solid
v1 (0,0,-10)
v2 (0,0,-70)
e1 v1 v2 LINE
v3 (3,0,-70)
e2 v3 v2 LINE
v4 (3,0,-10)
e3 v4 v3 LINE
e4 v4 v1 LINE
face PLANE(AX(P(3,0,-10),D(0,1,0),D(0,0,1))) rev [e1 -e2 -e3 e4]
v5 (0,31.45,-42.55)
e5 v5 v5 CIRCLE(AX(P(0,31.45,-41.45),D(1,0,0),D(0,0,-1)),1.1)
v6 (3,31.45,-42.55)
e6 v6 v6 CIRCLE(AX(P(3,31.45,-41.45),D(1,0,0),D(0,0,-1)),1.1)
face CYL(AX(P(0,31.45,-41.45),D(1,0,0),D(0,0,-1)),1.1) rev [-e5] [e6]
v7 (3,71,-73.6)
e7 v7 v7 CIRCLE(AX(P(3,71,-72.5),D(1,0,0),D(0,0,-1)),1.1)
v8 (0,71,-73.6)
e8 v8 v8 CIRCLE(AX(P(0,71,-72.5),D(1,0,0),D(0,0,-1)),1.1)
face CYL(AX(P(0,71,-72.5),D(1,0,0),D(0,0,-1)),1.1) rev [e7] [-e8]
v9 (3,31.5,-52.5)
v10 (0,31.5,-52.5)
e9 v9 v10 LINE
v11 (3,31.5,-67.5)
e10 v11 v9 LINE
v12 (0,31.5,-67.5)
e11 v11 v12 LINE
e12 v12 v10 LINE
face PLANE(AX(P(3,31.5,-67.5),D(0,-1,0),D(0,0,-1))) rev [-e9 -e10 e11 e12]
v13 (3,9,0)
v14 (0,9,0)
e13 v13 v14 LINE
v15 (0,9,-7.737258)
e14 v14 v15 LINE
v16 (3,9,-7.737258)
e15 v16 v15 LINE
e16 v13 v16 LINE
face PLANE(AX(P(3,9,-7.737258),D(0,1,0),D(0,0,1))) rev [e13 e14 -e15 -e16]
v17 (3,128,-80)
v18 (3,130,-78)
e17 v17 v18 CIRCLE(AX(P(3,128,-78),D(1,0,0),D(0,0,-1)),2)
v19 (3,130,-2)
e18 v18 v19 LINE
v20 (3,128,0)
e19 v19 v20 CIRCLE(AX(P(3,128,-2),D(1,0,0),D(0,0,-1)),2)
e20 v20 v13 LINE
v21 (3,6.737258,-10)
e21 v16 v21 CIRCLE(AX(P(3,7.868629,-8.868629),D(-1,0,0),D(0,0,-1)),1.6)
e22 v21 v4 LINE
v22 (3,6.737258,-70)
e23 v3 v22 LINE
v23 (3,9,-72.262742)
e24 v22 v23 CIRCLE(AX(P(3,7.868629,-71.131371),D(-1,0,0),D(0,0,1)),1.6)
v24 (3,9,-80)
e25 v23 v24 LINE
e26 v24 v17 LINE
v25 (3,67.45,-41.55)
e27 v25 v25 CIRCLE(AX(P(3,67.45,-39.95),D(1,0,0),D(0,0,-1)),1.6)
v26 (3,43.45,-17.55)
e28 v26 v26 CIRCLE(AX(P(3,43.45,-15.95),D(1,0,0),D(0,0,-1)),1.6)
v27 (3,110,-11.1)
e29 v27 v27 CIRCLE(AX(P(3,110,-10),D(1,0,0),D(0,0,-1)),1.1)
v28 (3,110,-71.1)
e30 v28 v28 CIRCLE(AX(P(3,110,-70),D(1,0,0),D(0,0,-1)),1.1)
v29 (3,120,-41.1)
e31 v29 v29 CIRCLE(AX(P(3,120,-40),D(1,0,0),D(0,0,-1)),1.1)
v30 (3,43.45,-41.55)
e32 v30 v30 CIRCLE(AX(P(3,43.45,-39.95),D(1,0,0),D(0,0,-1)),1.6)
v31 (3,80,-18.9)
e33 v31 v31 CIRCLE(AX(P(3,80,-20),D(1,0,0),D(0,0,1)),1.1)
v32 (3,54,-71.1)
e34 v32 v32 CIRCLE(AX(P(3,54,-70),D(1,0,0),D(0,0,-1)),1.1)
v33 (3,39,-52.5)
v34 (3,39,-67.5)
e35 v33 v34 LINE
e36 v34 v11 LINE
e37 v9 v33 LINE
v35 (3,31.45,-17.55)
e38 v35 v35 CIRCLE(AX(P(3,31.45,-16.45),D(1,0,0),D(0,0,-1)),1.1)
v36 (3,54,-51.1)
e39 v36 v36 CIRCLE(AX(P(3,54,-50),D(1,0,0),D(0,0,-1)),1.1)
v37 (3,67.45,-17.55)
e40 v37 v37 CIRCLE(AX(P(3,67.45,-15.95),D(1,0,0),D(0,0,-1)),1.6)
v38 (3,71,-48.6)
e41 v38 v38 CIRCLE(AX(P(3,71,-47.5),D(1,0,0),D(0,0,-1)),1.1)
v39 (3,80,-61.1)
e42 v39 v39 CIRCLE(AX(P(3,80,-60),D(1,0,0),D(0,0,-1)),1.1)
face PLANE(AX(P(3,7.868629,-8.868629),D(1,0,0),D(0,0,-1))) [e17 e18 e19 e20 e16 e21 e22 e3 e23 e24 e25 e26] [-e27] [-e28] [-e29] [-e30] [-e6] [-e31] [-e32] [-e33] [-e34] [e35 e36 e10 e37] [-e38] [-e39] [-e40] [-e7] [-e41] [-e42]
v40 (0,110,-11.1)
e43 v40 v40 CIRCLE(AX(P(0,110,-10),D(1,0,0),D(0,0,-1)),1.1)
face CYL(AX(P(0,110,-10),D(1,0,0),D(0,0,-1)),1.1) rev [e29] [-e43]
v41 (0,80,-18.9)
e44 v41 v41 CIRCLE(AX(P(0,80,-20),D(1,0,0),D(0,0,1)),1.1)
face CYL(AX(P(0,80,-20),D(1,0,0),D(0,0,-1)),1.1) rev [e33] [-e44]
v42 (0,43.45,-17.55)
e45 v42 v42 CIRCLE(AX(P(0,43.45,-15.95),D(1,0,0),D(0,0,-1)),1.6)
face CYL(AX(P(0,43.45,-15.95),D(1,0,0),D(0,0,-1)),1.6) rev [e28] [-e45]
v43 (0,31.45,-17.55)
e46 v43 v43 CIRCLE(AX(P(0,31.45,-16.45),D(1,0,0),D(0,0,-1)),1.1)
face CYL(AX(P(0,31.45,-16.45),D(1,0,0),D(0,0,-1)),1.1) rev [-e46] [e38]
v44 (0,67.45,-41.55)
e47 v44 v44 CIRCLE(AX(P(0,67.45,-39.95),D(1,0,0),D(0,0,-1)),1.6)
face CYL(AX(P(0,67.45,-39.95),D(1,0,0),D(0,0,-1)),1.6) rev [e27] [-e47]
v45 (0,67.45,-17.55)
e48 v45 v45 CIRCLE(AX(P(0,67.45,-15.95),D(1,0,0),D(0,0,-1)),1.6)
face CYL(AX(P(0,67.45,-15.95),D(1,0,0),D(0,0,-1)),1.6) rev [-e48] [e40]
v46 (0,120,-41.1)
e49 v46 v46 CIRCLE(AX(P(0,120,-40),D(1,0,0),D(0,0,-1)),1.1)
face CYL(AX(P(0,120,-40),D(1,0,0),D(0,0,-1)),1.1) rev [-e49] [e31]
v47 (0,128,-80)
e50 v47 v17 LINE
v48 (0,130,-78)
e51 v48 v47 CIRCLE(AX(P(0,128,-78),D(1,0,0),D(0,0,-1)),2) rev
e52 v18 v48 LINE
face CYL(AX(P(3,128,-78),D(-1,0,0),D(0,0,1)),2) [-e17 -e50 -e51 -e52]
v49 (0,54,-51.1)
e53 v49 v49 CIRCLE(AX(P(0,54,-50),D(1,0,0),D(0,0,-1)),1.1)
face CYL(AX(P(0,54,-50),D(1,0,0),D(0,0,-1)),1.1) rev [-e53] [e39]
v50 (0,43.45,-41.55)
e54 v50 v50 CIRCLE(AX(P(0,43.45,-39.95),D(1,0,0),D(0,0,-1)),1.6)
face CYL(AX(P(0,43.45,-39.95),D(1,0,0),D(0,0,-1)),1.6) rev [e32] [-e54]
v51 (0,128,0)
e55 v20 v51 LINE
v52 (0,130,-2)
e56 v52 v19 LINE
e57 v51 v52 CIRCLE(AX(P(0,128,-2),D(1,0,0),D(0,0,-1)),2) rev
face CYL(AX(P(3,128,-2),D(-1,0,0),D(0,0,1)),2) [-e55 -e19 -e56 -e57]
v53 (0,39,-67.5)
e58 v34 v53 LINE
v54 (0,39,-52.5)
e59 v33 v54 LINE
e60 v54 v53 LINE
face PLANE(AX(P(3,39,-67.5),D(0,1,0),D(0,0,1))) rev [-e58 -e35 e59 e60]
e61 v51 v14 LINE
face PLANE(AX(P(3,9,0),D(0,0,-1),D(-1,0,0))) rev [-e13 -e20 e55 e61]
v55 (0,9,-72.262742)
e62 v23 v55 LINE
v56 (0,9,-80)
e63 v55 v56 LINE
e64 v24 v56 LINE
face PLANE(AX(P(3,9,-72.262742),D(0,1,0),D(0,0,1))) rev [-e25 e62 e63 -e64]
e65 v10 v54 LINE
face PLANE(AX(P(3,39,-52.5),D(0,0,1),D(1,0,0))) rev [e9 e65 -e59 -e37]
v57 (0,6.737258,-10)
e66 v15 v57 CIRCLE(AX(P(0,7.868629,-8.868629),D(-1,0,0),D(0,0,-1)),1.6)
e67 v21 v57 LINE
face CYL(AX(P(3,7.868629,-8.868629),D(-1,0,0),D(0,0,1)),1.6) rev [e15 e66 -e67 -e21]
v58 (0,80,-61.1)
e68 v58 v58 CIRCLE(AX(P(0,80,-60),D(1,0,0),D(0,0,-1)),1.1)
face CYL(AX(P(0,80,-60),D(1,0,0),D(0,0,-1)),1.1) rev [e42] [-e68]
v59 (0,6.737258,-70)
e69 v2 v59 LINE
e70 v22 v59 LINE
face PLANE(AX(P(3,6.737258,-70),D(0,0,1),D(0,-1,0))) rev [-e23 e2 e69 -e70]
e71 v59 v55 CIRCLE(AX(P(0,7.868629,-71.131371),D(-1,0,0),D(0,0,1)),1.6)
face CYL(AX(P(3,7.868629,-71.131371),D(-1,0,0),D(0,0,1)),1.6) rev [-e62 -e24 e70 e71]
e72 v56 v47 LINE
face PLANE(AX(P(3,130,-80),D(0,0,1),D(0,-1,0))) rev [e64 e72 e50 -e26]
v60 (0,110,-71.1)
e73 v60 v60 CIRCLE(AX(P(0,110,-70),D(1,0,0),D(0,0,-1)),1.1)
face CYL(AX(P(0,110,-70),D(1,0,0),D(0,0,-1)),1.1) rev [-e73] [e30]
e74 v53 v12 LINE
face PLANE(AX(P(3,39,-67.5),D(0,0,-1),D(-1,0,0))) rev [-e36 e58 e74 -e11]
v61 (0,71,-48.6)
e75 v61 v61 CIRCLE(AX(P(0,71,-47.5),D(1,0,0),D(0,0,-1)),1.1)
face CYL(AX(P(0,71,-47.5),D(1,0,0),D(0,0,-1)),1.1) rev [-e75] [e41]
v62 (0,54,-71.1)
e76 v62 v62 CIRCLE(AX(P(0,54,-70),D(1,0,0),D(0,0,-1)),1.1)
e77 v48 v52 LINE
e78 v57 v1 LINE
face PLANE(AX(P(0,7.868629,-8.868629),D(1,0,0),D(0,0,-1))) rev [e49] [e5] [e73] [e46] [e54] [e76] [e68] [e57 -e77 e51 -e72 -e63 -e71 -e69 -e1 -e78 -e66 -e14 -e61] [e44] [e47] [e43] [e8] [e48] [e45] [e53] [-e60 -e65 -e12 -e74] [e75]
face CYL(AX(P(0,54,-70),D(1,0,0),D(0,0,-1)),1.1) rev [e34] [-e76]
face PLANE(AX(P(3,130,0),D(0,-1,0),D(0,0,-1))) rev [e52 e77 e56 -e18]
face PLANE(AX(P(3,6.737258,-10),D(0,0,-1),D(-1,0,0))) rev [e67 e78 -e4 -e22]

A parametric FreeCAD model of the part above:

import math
import FreeCAD as App
import Part
import Sketcher
from FreeCAD import Vector
Q = App.Units.Quantity


def edges_at(feature, points):
    """Names of the edges that pass closest to the given points."""
    edges = feature.Shape.Edges
    near = lambda p: min(range(len(edges)), key=lambda i: edges[i].distToShape(Part.Vertex(*p))[0])
    return sorted({f"Edge{near(p) + 1}" for p in points})


def add_polygon(sketch, points):
    """Adds a closed chain of lines whose ends are joined by coincident constraints."""
    first, n = sketch.GeometryCount, len(points)
    for a, b in zip(points, points[1:] + points[:1]):
        sketch.addGeometry(Part.LineSegment(App.Vector(*a, 0), App.Vector(*b, 0)), False)
    for i in range(n):
        sketch.addConstraint(Sketcher.Constraint("Coincident", first + i, 2, first + (i + 1) % n, 1))

doc = App.newDocument("Part")
body = doc.addObject("PartDesign::Body", "Body")

# Sketch on YZ plane
sketch1 = body.newObject("Sketcher::SketchObject", "Sketch")
sketch1.AttachmentSupport = (doc.getObject("YZ_Plane"), [""])
sketch1.MapMode = "FlatFace"
sketch1.addGeometry(Part.LineSegment(Vector(6.7, -10, 0), Vector(0, -10, 0)), False)
sketch1.addGeometry(Part.LineSegment(Vector(0, -10, 0), Vector(0, -70, 0)), False)
sketch1.addGeometry(Part.LineSegment(Vector(0, -70, 0), Vector(6.7, -70, 0)), False)
sketch1.addGeometry(Part.ArcOfCircle(Part.Circle(Vector(7.9, -71.1, 0), Vector(0, 0, 1), 1.6), math.radians(-45), math.radians(135)), False)
sketch1.addGeometry(Part.LineSegment(Vector(9, -72.3, 0), Vector(9, -80, 0)), False)
sketch1.addGeometry(Part.LineSegment(Vector(9, -80, 0), Vector(130, -80, 0)), False)
sketch1.addGeometry(Part.LineSegment(Vector(130, -80, 0), Vector(130, 0, 0)), False)
sketch1.addGeometry(Part.LineSegment(Vector(130, 0, 0), Vector(9, 0, 0)), False)
sketch1.addGeometry(Part.LineSegment(Vector(9, 0, 0), Vector(9, -7.7, 0)), False)
sketch1.addGeometry(Part.ArcOfCircle(Part.Circle(Vector(7.9, -8.9, 0), Vector(0, 0, 1), 1.6), math.radians(-135), math.radians(45)), False)
sketch1.addConstraint(Sketcher.Constraint("Coincident", 0, 2, 1, 1))
sketch1.addConstraint(Sketcher.Constraint("Coincident", 1, 2, 2, 1))
sketch1.addConstraint(Sketcher.Constraint("Coincident", 2, 2, 3, 2))
sketch1.addConstraint(Sketcher.Constraint("Coincident", 3, 1, 4, 1))
sketch1.addConstraint(Sketcher.Constraint("Coincident", 4, 2, 5, 1))
sketch1.addConstraint(Sketcher.Constraint("Coincident", 5, 2, 6, 1))
sketch1.addConstraint(Sketcher.Constraint("Coincident", 6, 2, 7, 1))
sketch1.addConstraint(Sketcher.Constraint("Coincident", 7, 2, 8, 1))
sketch1.addConstraint(Sketcher.Constraint("Coincident", 8, 2, 9, 2))
sketch1.addConstraint(Sketcher.Constraint("Coincident", 9, 1, 0, 1))
sketch1.addConstraint(Sketcher.Constraint("Horizontal", 0))
sketch1.addConstraint(Sketcher.Constraint("Vertical", 1))
sketch1.addConstraint(Sketcher.Constraint("Horizontal", 2))
sketch1.addConstraint(Sketcher.Constraint("Vertical", 4))
sketch1.addConstraint(Sketcher.Constraint("Horizontal", 5))
sketch1.addConstraint(Sketcher.Constraint("Vertical", 6))
sketch1.addConstraint(Sketcher.Constraint("Horizontal", 7))
sketch1.addConstraint(Sketcher.Constraint("Vertical", 8))
sketch1.addConstraint(Sketcher.Constraint("Equal", 3, 9))
sketch1.addConstraint(Sketcher.Constraint("PointOnObject", 0, 2, -2))
sketch1.addConstraint(Sketcher.Constraint("PointOnObject", 6, 2, -1))
sketch1.addConstraint(Sketcher.Constraint("Vertical", 3, 3, 9, 3))
sketch1.addConstraint(Sketcher.Constraint("Vertical", 4, 2, 7, 2))
sketch1.addConstraint(Sketcher.Constraint("Vertical", 2, 2, 9, 1))
sketch1.addConstraint(Sketcher.Constraint("Equal", 4, 8))
sketch1.addConstraint(Sketcher.Constraint("Radius", 3, Q("1.6 mm")))
sketch1.addConstraint(Sketcher.Constraint("DistanceX", 5, 1, 5, 2, Q("121 mm")))
sketch1.addConstraint(Sketcher.Constraint("DistanceY", 1, 2, 1, 1, Q("60 mm")))
sketch1.addConstraint(Sketcher.Constraint("DistanceY", 6, 1, 6, 2, Q("80 mm")))
sketch1.addConstraint(Sketcher.Constraint("DistanceX", -1, 1, 3, 1, Q("9 mm")))
sketch1.addConstraint(Sketcher.Constraint("DistanceX", 0, 2, 0, 1, Q("6.737258 mm")))
sketch1.addConstraint(Sketcher.Constraint("DistanceX", -1, 1, 3, 3, Q("7.868629 mm")))
pad1 = body.newObject("PartDesign::Pad", "Pad")
pad1.Profile = sketch1
pad1.Length = 3

# Sketch on YZ plane
sketch2 = body.newObject("Sketcher::SketchObject", "Sketch001")
sketch2.AttachmentSupport = (doc.getObject("YZ_Plane"), [""])
sketch2.MapMode = "FlatFace"
sketch2.AttachmentOffset = App.Placement(Vector(0, 0, 3), App.Rotation())
sketch2.addGeometry(Part.Circle(Vector(80, -60, 0), Vector(0, 0, 1), 1.1), False)
sketch2.addGeometry(Part.Circle(Vector(110, -10, 0), Vector(0, 0, 1), 1.1), False)
sketch2.addGeometry(Part.Circle(Vector(80, -20, 0), Vector(0, 0, 1), 1.1), False)
sketch2.addGeometry(Part.Circle(Vector(110, -70, 0), Vector(0, 0, 1), 1.1), False)
sketch2.addGeometry(Part.Circle(Vector(67.5, -15.9, 0), Vector(0, 0, 1), 1.6), False)
sketch2.addGeometry(Part.Circle(Vector(43.5, -15.9, 0), Vector(0, 0, 1), 1.6), False)
sketch2.addGeometry(Part.Circle(Vector(43.5, -40, 0), Vector(0, 0, 1), 1.6), False)
sketch2.addGeometry(Part.Circle(Vector(67.5, -40, 0), Vector(0, 0, 1), 1.6), False)
sketch2.addGeometry(Part.Circle(Vector(120, -40, 0), Vector(0, 0, 1), 1.1), False)
sketch2.addGeometry(Part.Circle(Vector(54, -70, 0), Vector(0, 0, 1), 1.1), False)
sketch2.addGeometry(Part.Circle(Vector(54, -50, 0), Vector(0, 0, 1), 1.1), False)
sketch2.addConstraint(Sketcher.Constraint("Equal", 0, 1))
sketch2.addConstraint(Sketcher.Constraint("Equal", 1, 2))
sketch2.addConstraint(Sketcher.Constraint("Equal", 2, 3))
sketch2.addConstraint(Sketcher.Constraint("Equal", 4, 5))
sketch2.addConstraint(Sketcher.Constraint("Equal", 5, 6))
sketch2.addConstraint(Sketcher.Constraint("Equal", 6, 7))
sketch2.addConstraint(Sketcher.Constraint("Equal", 3, 8))
sketch2.addConstraint(Sketcher.Constraint("Equal", 8, 9))
sketch2.addConstraint(Sketcher.Constraint("Equal", 9, 10))
sketch2.addConstraint(Sketcher.Constraint("Horizontal", 4, 3, 5, 3))
sketch2.addConstraint(Sketcher.Constraint("Horizontal", 6, 3, 7, 3))
sketch2.addConstraint(Sketcher.Constraint("Horizontal", 3, 3, 9, 3))
sketch2.addConstraint(Sketcher.Constraint("Vertical", 0, 3, 2, 3))
sketch2.addConstraint(Sketcher.Constraint("Vertical", 1, 3, 3, 3))
sketch2.addConstraint(Sketcher.Constraint("Vertical", 5, 3, 6, 3))
sketch2.addConstraint(Sketcher.Constraint("Vertical", 4, 3, 7, 3))
sketch2.addConstraint(Sketcher.Constraint("Vertical", 9, 3, 10, 3))
sketch2.addConstraint(Sketcher.Constraint("Diameter", 0, Q("2.2 mm")))
sketch2.addConstraint(Sketcher.Constraint("Diameter", 4, Q("3.2 mm")))
sketch2.addConstraint(Sketcher.Constraint("DistanceX", -1, 1, 0, 3, Q("80 mm")))
sketch2.addConstraint(Sketcher.Constraint("DistanceY", 0, 3, -1, 1, Q("60 mm")))
sketch2.addConstraint(Sketcher.Constraint("DistanceX", -1, 1, 1, 3, Q("110 mm")))
sketch2.addConstraint(Sketcher.Constraint("DistanceY", 1, 3, -1, 1, Q("10 mm")))
sketch2.addConstraint(Sketcher.Constraint("DistanceY", 2, 3, -1, 1, Q("20 mm")))
sketch2.addConstraint(Sketcher.Constraint("DistanceY", 3, 3, -1, 1, Q("70 mm")))
sketch2.addConstraint(Sketcher.Constraint("DistanceX", -1, 1, 8, 3, Q("120 mm")))
sketch2.addConstraint(Sketcher.Constraint("DistanceY", 8, 3, -1, 1, Q("40 mm")))
sketch2.addConstraint(Sketcher.Constraint("DistanceX", -1, 1, 9, 3, Q("54 mm")))
sketch2.addConstraint(Sketcher.Constraint("DistanceY", 10, 3, -1, 1, Q("50 mm")))
sketch2.addConstraint(Sketcher.Constraint("DistanceX", 5, 3, 4, 3, Q("24 mm")))
sketch2.addConstraint(Sketcher.Constraint("DistanceY", 6, 3, 5, 3, Q("24 mm")))
sketch2.addConstraint(Sketcher.Constraint("DistanceX", -1, 1, 4, 3, Q("67.45 mm")))
sketch2.addConstraint(Sketcher.Constraint("DistanceY", 4, 3, -1, 1, Q("15.95 mm")))
pocket1 = body.newObject("PartDesign::Pocket", "Pocket")
pocket1.Profile = sketch2
pocket1.Type = "ThroughAll"

# Sketch on YZ plane
sketch3 = body.newObject("Sketcher::SketchObject", "Sketch002")
sketch3.AttachmentSupport = (doc.getObject("YZ_Plane"), [""])
sketch3.MapMode = "FlatFace"
add_polygon(sketch3, [(39, -68), (32, -68), (32, -52), (39, -52)])  # lines 0-3
sketch3.addConstraint(Sketcher.Constraint("Horizontal", 0))
sketch3.addConstraint(Sketcher.Constraint("Vertical", 1))
sketch3.addConstraint(Sketcher.Constraint("Horizontal", 2))
sketch3.addConstraint(Sketcher.Constraint("Vertical", 3))
sketch3.addConstraint(Sketcher.Constraint("DistanceY", 1, 1, 1, 2, Q("15 mm")))
sketch3.addConstraint(Sketcher.Constraint("DistanceX", 0, 2, 0, 1, Q("7.5 mm")))
sketch3.addConstraint(Sketcher.Constraint("DistanceX", -1, 1, 2, 2, Q("39 mm")))
sketch3.addConstraint(Sketcher.Constraint("DistanceY", 0, 2, -1, 1, Q("67.5 mm")))
pocket2 = body.newObject("PartDesign::Pocket", "Pocket001")
pocket2.Profile = sketch3
pocket2.Type = "ThroughAll"
pocket2.Reversed = True
doc.recompute()

fillet = body.newObject("PartDesign::Fillet", "Fillet")
fillet.Base = (pocket2, edges_at(pocket2, [(1.5, 130, 0), (1.5, 130, -80)]))
fillet.Radius = 2

# Sketch on YZ plane
sketch4 = body.newObject("Sketcher::SketchObject", "Sketch003")
sketch4.AttachmentSupport = (doc.getObject("YZ_Plane"), [""])
sketch4.MapMode = "FlatFace"
sketch4.AttachmentOffset = App.Placement(Vector(0, 0, 3), App.Rotation())
sketch4.addGeometry(Part.Circle(Vector(31.4, -16.4, 0), Vector(0, 0, 1), 1.1), False)
sketch4.addGeometry(Part.Circle(Vector(31.4, -41.5, 0), Vector(0, 0, 1), 1.1), False)
sketch4.addGeometry(Part.Circle(Vector(71, -47.5, 0), Vector(0, 0, 1), 1.1), False)
sketch4.addGeometry(Part.Circle(Vector(71, -72.5, 0), Vector(0, 0, 1), 1.1), False)
sketch4.addConstraint(Sketcher.Constraint("Equal", 0, 1))
sketch4.addConstraint(Sketcher.Constraint("Equal", 1, 2))
sketch4.addConstraint(Sketcher.Constraint("Equal", 2, 3))
sketch4.addConstraint(Sketcher.Constraint("Vertical", 0, 3, 1, 3))
sketch4.addConstraint(Sketcher.Constraint("Vertical", 2, 3, 3, 3))
sketch4.addConstraint(Sketcher.Constraint("Diameter", 0, Q("2.2 mm")))
sketch4.addConstraint(Sketcher.Constraint("DistanceX", -1, 1, 2, 3, Q("71 mm")))
sketch4.addConstraint(Sketcher.Constraint("DistanceY", 1, 3, 0, 3, Q("25 mm")))
sketch4.addConstraint(Sketcher.Constraint("DistanceY", 3, 3, 2, 3, Q("25 mm")))
sketch4.addConstraint(Sketcher.Constraint("DistanceY", 2, 3, -1, 1, Q("47.5 mm")))
sketch4.addConstraint(Sketcher.Constraint("DistanceX", -1, 1, 0, 3, Q("31.45 mm")))
sketch4.addConstraint(Sketcher.Constraint("DistanceY", 0, 3, -1, 1, Q("16.45 mm")))
pocket3 = body.newObject("PartDesign::Pocket", "Pocket002")
pocket3.Profile = sketch4
pocket3.Type = "ThroughAll"

doc.recompute()
